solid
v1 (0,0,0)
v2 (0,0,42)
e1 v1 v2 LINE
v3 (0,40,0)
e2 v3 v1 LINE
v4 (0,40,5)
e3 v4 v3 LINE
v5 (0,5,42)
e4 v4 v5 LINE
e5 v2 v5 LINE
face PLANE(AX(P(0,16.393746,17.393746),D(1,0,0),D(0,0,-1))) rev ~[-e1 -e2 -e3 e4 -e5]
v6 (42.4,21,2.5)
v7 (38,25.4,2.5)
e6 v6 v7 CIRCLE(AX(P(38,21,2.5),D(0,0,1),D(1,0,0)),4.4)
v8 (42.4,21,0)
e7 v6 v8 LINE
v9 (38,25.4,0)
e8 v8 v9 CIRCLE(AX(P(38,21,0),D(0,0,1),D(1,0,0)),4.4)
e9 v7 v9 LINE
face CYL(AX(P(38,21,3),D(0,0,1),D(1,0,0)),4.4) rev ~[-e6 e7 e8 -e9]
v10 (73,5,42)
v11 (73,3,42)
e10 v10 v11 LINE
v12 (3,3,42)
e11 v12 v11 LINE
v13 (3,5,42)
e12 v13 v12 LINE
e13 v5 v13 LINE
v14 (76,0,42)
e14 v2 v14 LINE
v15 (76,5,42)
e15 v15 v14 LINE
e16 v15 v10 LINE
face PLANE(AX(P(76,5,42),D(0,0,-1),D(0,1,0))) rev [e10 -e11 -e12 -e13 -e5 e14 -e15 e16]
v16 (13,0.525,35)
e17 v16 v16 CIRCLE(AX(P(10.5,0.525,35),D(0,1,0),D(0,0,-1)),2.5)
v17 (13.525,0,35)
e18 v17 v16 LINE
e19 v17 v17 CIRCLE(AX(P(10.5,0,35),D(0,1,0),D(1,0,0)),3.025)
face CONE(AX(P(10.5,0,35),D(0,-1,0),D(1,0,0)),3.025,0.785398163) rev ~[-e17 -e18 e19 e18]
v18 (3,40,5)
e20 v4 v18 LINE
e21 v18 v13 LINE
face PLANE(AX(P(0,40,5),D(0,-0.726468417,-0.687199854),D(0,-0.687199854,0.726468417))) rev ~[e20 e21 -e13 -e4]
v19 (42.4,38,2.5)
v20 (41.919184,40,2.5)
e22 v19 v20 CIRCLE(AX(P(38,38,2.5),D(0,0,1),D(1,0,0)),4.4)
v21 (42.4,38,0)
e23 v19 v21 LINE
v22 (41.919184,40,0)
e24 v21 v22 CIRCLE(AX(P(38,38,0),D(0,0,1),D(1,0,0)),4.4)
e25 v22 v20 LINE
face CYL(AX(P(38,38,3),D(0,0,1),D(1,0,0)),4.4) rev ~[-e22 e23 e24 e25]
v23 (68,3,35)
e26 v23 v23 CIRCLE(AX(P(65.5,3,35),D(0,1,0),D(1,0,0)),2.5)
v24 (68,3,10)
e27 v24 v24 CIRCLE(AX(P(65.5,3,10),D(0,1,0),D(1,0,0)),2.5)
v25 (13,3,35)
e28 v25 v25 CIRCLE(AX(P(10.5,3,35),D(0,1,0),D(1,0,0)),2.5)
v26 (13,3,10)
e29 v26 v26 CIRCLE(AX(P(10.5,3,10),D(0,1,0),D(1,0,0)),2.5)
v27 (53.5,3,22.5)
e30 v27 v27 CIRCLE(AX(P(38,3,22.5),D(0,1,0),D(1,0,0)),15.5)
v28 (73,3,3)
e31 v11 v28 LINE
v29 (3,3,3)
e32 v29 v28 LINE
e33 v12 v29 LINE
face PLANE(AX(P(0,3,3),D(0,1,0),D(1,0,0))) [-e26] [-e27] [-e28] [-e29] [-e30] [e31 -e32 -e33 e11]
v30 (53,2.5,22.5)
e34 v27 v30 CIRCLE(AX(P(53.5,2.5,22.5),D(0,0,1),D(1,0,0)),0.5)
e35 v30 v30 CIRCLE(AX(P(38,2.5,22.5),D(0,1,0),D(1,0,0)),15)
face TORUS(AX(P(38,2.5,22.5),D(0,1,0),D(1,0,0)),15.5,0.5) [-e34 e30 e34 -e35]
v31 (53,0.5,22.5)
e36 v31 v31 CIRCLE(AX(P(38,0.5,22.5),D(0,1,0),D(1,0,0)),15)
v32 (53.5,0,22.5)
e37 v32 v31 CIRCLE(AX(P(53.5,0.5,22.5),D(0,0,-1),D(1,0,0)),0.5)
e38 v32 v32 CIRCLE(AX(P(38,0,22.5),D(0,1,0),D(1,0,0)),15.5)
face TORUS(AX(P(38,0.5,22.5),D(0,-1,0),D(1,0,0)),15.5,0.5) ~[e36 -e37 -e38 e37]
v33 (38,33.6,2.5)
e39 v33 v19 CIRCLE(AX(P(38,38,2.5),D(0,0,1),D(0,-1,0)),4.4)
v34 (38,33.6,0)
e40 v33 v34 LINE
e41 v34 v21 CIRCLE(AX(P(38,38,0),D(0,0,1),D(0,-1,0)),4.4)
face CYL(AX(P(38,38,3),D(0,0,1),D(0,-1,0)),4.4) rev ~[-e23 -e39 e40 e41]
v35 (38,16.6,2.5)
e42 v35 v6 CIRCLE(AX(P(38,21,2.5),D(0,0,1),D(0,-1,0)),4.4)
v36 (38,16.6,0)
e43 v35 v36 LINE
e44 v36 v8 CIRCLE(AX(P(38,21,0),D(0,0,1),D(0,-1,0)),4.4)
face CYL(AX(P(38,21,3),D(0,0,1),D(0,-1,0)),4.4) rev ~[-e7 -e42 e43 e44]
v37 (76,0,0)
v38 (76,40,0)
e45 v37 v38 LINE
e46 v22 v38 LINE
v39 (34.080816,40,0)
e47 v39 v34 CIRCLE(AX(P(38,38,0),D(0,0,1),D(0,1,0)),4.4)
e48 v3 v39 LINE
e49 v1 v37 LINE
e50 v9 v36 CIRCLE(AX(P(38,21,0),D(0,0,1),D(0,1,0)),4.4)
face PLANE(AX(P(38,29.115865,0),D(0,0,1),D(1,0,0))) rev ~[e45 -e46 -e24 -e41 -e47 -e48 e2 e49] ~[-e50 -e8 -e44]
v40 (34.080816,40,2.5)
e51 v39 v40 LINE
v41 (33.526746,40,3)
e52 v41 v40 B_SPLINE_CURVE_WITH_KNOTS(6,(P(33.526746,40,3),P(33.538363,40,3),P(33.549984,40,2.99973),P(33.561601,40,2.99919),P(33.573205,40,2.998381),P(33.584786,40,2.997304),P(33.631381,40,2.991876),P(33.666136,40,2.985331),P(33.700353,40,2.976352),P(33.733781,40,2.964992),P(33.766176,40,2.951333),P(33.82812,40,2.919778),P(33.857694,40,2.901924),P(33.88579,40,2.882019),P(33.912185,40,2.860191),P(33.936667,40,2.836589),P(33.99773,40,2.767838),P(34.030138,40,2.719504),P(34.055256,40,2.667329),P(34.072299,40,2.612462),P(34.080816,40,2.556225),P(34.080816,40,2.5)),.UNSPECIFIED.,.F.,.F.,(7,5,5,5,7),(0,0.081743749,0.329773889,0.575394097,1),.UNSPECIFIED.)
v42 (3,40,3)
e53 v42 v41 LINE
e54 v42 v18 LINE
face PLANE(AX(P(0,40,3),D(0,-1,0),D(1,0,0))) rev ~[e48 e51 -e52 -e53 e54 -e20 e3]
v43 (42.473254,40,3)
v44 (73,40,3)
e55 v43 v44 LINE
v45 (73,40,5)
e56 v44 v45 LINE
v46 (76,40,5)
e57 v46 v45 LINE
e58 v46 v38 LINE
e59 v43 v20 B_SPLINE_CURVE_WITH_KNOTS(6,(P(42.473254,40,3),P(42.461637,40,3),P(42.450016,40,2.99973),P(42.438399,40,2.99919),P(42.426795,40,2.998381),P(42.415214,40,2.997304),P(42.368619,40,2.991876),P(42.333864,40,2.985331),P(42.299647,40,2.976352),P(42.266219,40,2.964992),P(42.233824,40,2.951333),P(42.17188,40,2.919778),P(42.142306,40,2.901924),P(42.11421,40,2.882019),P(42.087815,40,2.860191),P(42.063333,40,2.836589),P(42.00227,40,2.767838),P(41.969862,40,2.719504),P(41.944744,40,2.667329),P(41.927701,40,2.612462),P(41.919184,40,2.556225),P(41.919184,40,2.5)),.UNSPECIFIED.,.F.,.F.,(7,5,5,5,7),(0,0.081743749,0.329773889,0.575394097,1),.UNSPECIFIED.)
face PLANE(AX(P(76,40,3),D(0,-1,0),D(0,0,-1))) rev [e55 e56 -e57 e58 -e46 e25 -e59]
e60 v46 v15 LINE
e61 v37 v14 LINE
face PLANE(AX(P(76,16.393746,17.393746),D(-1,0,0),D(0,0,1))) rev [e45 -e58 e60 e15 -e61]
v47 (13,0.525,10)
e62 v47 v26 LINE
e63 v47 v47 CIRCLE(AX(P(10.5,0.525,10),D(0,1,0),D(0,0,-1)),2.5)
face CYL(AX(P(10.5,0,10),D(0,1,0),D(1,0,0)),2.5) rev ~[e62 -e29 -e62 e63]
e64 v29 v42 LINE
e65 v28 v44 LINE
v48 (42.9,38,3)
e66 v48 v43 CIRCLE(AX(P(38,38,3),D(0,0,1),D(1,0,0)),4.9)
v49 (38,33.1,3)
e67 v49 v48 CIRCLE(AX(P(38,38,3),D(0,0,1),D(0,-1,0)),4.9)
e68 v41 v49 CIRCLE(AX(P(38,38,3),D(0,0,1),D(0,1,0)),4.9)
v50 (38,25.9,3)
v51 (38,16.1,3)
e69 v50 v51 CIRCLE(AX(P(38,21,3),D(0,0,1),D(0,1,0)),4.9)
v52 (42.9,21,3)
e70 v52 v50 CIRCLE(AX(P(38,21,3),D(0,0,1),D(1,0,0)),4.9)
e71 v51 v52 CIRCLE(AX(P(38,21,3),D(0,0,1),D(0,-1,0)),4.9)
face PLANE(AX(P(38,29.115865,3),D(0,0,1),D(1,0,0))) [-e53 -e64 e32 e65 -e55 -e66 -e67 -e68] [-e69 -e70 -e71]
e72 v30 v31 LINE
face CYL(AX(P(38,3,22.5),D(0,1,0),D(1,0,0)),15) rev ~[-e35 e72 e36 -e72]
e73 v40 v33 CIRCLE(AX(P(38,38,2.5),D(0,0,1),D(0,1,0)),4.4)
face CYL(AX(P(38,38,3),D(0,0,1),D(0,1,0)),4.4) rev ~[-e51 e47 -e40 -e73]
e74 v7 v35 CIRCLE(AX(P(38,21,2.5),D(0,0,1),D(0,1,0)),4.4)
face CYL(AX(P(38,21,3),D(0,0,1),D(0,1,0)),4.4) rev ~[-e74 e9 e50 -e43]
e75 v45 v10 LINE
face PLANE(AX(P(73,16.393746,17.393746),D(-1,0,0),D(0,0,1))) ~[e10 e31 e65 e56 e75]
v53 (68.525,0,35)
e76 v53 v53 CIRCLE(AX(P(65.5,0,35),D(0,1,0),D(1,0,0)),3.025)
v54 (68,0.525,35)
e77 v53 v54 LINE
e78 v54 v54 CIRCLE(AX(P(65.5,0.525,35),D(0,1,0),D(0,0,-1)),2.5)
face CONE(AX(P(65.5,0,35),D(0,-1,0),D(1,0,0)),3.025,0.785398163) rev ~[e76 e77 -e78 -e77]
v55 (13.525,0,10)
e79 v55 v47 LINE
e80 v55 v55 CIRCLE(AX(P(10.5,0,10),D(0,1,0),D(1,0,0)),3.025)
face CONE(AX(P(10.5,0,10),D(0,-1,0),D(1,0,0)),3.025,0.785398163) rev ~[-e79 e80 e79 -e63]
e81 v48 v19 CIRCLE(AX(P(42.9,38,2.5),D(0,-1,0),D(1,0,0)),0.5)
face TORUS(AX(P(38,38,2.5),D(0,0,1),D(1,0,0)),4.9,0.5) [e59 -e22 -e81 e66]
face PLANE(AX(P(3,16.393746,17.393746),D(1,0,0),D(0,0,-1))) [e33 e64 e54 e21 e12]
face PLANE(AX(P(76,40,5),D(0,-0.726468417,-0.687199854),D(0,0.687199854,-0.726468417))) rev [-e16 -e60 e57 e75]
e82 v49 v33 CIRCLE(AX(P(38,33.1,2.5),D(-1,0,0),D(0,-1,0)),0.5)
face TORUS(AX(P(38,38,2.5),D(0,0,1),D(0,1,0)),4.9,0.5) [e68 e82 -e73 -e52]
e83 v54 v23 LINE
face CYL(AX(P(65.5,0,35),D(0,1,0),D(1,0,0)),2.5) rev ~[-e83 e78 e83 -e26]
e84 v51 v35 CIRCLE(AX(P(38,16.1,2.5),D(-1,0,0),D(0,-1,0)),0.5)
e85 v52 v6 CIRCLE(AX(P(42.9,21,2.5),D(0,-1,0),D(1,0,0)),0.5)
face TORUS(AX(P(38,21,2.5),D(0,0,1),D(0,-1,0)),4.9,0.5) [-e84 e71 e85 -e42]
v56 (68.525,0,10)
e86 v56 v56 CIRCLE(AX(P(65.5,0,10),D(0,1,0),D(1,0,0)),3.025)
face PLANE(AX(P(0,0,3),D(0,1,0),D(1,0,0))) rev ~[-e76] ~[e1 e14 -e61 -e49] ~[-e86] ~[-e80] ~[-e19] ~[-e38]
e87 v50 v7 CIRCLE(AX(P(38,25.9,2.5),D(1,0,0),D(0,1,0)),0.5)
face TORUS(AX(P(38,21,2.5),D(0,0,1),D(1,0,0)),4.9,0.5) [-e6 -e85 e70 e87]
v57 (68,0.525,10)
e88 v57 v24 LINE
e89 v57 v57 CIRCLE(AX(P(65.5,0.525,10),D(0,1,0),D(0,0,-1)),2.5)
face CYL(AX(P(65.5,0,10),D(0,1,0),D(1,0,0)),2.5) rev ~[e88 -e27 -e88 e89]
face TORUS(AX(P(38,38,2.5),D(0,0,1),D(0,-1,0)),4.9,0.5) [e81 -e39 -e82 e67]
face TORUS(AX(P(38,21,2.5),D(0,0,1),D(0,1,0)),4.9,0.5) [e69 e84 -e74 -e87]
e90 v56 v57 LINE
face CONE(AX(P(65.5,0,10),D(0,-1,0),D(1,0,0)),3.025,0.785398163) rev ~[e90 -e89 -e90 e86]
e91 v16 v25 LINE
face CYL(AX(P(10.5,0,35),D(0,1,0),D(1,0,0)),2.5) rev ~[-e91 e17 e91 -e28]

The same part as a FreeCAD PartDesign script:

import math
import FreeCAD as App
import Part
import Sketcher
from FreeCAD import Vector


def edges_at(feature, points):
    """Names of the edges that pass closest to the given points."""
    edges = feature.Shape.Edges
    near = lambda p: min(range(len(edges)), key=lambda i: edges[i].distToShape(Part.Vertex(*p))[0])
    return sorted({f"Edge{near(p) + 1}" for p in points})

doc = App.newDocument("Part")
params = doc.addObject("Spreadsheet::Sheet", "Params")
for row, (alias, value) in enumerate([
    ("sketch1_width", "20 mm"),
    ("sketch1_width2", "76 mm"),
    ("sketch1_height", "40 mm"),
    ("pad1_length", "3 mm"),
    ("sketch2_width", "76 mm"),
    ("sketch2_height", "3 mm"),
    ("pad2_length", "39 mm"),
    ("sketch3_radius", "4.4 mm"),
    ("pocket1_length", "52 mm"),
    ("sketch4_diameter", "30 mm"),
    ("pocket2_length", "52 mm"),
    ("sketch5_width", "37 mm"),
    ("sketch5_width2", "2 mm"),
    ("sketch5_height", "39 mm"),
    ("pad3_length", "3 mm"),
    ("sketch6_diameter", "5 mm"),
    ("hole_diameter", "5 mm"),
    ("hole_csink_diameter", "6.05 mm"),
    ("fillet_radius", "5 mm"),
    ("fillet2_radius", "0.5 mm"),
    ("sketch7_width", "76 mm"),
    ("pocket3_length", "21 mm"),
], start=1):
    params.set(f"A{row}", alias)
    params.set(f"B{row}", "=" + value)
    params.setAlias(f"B{row}", alias)

body = doc.addObject("PartDesign::Body", "Body")

# Sketch on XY plane
sketch1 = doc.addObject("Sketcher::SketchObject", "Sketch")
body.addObject(sketch1)
sketch1.AttachmentSupport = (doc.XY_Plane, [""])
sketch1.MapMode = "FlatFace"
sketch1.addGeometry([
    Part.LineSegment(Vector(48, 70, 0), Vector(28, 70, 0)),  # 0
    Part.LineSegment(Vector(28, 70, 0), Vector(0, 40, 0)),  # 1
    Part.LineSegment(Vector(0, 40, 0), Vector(0, 0, 0)),  # 2
    Part.LineSegment(Vector(0, 0, 0), Vector(76, 0, 0)),  # 3
    Part.LineSegment(Vector(76, 0, 0), Vector(76, 40, 0)),  # 4
    Part.LineSegment(Vector(76, 40, 0), Vector(48, 70, 0)),  # 5
], False)
sketch1.addConstraint([
    Sketcher.Constraint("Coincident", 0, 2, 1, 1),
    Sketcher.Constraint("Coincident", 1, 2, 2, 1),
    Sketcher.Constraint("Coincident", 2, 2, 3, 1),
    Sketcher.Constraint("Coincident", 3, 2, 4, 1),
    Sketcher.Constraint("Coincident", 4, 2, 5, 1),
    Sketcher.Constraint("Coincident", 5, 2, 0, 1),
    Sketcher.Constraint("Horizontal", 0),
    Sketcher.Constraint("Vertical", 2),
    Sketcher.Constraint("Horizontal", 3),
    Sketcher.Constraint("Vertical", 4),
    Sketcher.Constraint("Coincident", 2, 2, -1, 1),
    Sketcher.Constraint("Horizontal", 1, 2, 4, 2),
    Sketcher.Constraint("Equal", 1, 5),
    Sketcher.Constraint("DistanceX", 0, 2, 0, 1, 20.0),
    Sketcher.Constraint("DistanceX", 3, 1, 3, 2, 76.0),
    Sketcher.Constraint("DistanceY", 2, 2, 2, 1, 40.0),
    Sketcher.Constraint("DistanceY", -1, 1, 0, 2, 70.0),
])
sketch1.setExpression("Constraints[13]", "Params.sketch1_width")
sketch1.setExpression("Constraints[14]", "Params.sketch1_width2")
sketch1.setExpression("Constraints[15]", "Params.sketch1_height")
pad1 = doc.addObject("PartDesign::Pad", "Pad")
body.addObject(pad1)
pad1.Profile = sketch1
pad1.setExpression("Length", "Params.pad1_length")

# Sketch on XY plane
sketch2 = doc.addObject("Sketcher::SketchObject", "Sketch001")
body.addObject(sketch2)
sketch2.AttachmentSupport = (doc.XY_Plane, [""])
sketch2.MapMode = "FlatFace"
sketch2.AttachmentOffset = App.Placement(Vector(0, 0, 3), App.Rotation())
sketch2.addGeometry([
    Part.LineSegment(Vector(0, 3, 0), Vector(0, 0, 0)),
    Part.LineSegment(Vector(0, 0, 0), Vector(76, 0, 0)),
    Part.LineSegment(Vector(76, 0, 0), Vector(76, 3, 0)),
    Part.LineSegment(Vector(76, 3, 0), Vector(0, 3, 0)),
], False)
sketch2.addConstraint([
    Sketcher.Constraint("Coincident", 0, 2, 1, 1),
    Sketcher.Constraint("Coincident", 1, 2, 2, 1),
    Sketcher.Constraint("Coincident", 2, 2, 3, 1),
    Sketcher.Constraint("Coincident", 3, 2, 0, 1),
    Sketcher.Constraint("Vertical", 0),
    Sketcher.Constraint("Horizontal", 1),
    Sketcher.Constraint("Vertical", 2),
    Sketcher.Constraint("Horizontal", 3),
    Sketcher.Constraint("Coincident", 0, 2, -1, 1),
    Sketcher.Constraint("DistanceX", 1, 1, 1, 2, 76.0),
    Sketcher.Constraint("DistanceY", 0, 2, 0, 1, 3.0),
])
sketch2.setExpression("Constraints[9]", "Params.sketch2_width")
sketch2.setExpression("Constraints[10]", "Params.sketch2_height")
pad2 = doc.addObject("PartDesign::Pad", "Pad001")
body.addObject(pad2)
pad2.Profile = sketch2
pad2.setExpression("Length", "Params.pad2_length")

# Sketch on XY plane
sketch3 = doc.addObject("Sketcher::SketchObject", "Sketch002")
body.addObject(sketch3)
sketch3.AttachmentSupport = (doc.XY_Plane, [""])
sketch3.MapMode = "FlatFace"
sketch3.AttachmentOffset = App.Placement(Vector(0, 0, 3), App.Rotation())
sketch3.addGeometry([
    Part.ArcOfCircle(Part.Circle(Vector(38, 55, 0), Vector(0, 0, 1), 4.4), math.radians(0), math.radians(90)),  # 0
    Part.ArcOfCircle(Part.Circle(Vector(38, 55, 0), Vector(0, 0, 1), 4.4), math.radians(90), math.radians(270)),  # 1
    Part.ArcOfCircle(Part.Circle(Vector(38, 55, 0), Vector(0, 0, 1), 4.4), math.radians(-90), math.radians(0)),  # 2
    Part.ArcOfCircle(Part.Circle(Vector(38, 38, 0), Vector(0, 0, 1), 4.4), math.radians(0), math.radians(90)),  # 3
    Part.ArcOfCircle(Part.Circle(Vector(38, 38, 0), Vector(0, 0, 1), 4.4), math.radians(90), math.radians(270)),  # 4
    Part.ArcOfCircle(Part.Circle(Vector(38, 38, 0), Vector(0, 0, 1), 4.4), math.radians(-90), math.radians(0)),  # 5
    Part.ArcOfCircle(Part.Circle(Vector(38, 21, 0), Vector(0, 0, 1), 4.4), math.radians(0), math.radians(90)),  # 6
    Part.ArcOfCircle(Part.Circle(Vector(38, 21, 0), Vector(0, 0, 1), 4.4), math.radians(90), math.radians(270)),  # 7
    Part.ArcOfCircle(Part.Circle(Vector(38, 21, 0), Vector(0, 0, 1), 4.4), math.radians(-90), math.radians(0)),  # 8
], False)
sketch3.addConstraint([
    Sketcher.Constraint("Tangent", 0, 2, 1, 1),
    Sketcher.Constraint("Tangent", 1, 2, 2, 1),
    Sketcher.Constraint("Tangent", 2, 2, 0, 1),
    Sketcher.Constraint("Tangent", 3, 2, 4, 1),
    Sketcher.Constraint("Tangent", 4, 2, 5, 1),
    Sketcher.Constraint("Tangent", 5, 2, 3, 1),
    Sketcher.Constraint("Tangent", 6, 2, 7, 1),
    Sketcher.Constraint("Tangent", 7, 2, 8, 1),
    Sketcher.Constraint("Tangent", 8, 2, 6, 1),
    Sketcher.Constraint("Equal", 2, 3),
    Sketcher.Constraint("Equal", 5, 6),
    Sketcher.Constraint("Horizontal", 1, 3, 2, 2),
    Sketcher.Constraint("Horizontal", 4, 3, 5, 2),
    Sketcher.Constraint("Horizontal", 7, 3, 8, 2),
    Sketcher.Constraint("Vertical", 2, 3, 3, 3),
    Sketcher.Constraint("Vertical", 5, 3, 6, 3),
    Sketcher.Constraint("Vertical", 8, 3, 0, 2),
    Sketcher.Constraint("Vertical", 0, 2, 1, 2),
    Sketcher.Constraint("Vertical", 1, 2, 3, 2),
    Sketcher.Constraint("Vertical", 3, 2, 4, 2),
    Sketcher.Constraint("Vertical", 4, 2, 6, 2),
    Sketcher.Constraint("Vertical", 6, 2, 7, 2),
    Sketcher.Constraint("Radius", 0, 4.4),
    Sketcher.Constraint("DistanceX", -1, 1, 0, 3, 38.0),
    Sketcher.Constraint("DistanceY", -1, 1, 0, 3, 55.0),
    Sketcher.Constraint("DistanceY", -1, 1, 3, 3, 38.0),
    Sketcher.Constraint("DistanceY", -1, 1, 6, 3, 21.0),
])
sketch3.setExpression("Constraints[22]", "Params.sketch3_radius")
pocket1 = doc.addObject("PartDesign::Pocket", "Pocket")
body.addObject(pocket1)
pocket1.Profile = sketch3
pocket1.setExpression("Length", "Params.pocket1_length")

# Sketch on XZ plane
sketch4 = doc.addObject("Sketcher::SketchObject", "Sketch003")
body.addObject(sketch4)
sketch4.AttachmentSupport = (doc.XZ_Plane, [""])
sketch4.MapMode = "FlatFace"
sketch4.AttachmentOffset = App.Placement(Vector(0, 0, -3), App.Rotation())
sketch4.addGeometry(Part.Circle(Vector(38, 22, 0), Vector(0, 0, 1), 15), False)
sketch4.addConstraint([
    Sketcher.Constraint("Diameter", 0, 30.0),
    Sketcher.Constraint("DistanceX", -1, 1, 0, 3, 38.0),
    Sketcher.Constraint("DistanceY", -1, 1, 0, 3, 22.5),
])
sketch4.setExpression("Constraints[0]", "Params.sketch4_diameter")
pocket2 = doc.addObject("PartDesign::Pocket", "Pocket001")
body.addObject(pocket2)
pocket2.Profile = sketch4
pocket2.setExpression("Length", "Params.pocket2_length")
pocket2.Reversed = True

# Sketch on YZ plane
sketch5 = doc.addObject("Sketcher::SketchObject", "Sketch004")
body.addObject(sketch5)
sketch5.AttachmentSupport = (doc.YZ_Plane, [""])
sketch5.MapMode = "FlatFace"
sketch5.addGeometry([
    Part.LineSegment(Vector(40, 5, 0), Vector(40, 3, 0)),  # 0
    Part.LineSegment(Vector(40, 3, 0), Vector(3, 3, 0)),  # 1
    Part.LineSegment(Vector(3, 3, 0), Vector(3, 42, 0)),  # 2
    Part.LineSegment(Vector(3, 42, 0), Vector(5, 42, 0)),  # 3
    Part.LineSegment(Vector(5, 42, 0), Vector(40, 5, 0)),  # 4
], False)
sketch5.addConstraint([
    Sketcher.Constraint("Coincident", 0, 2, 1, 1),
    Sketcher.Constraint("Coincident", 1, 2, 2, 1),
    Sketcher.Constraint("Coincident", 2, 2, 3, 1),
    Sketcher.Constraint("Coincident", 3, 2, 4, 1),
    Sketcher.Constraint("Coincident", 4, 2, 0, 1),
    Sketcher.Constraint("Vertical", 0),
    Sketcher.Constraint("Horizontal", 1),
    Sketcher.Constraint("Vertical", 2),
    Sketcher.Constraint("Horizontal", 3),
    Sketcher.Constraint("Equal", 3, 0),
    Sketcher.Constraint("DistanceX", 1, 2, 1, 1, 37.0),
    Sketcher.Constraint("DistanceX", 3, 1, 3, 2, 2.0),
    Sketcher.Constraint("DistanceY", 2, 1, 2, 2, 39.0),
    Sketcher.Constraint("DistanceX", -1, 1, 0, 2, 40.0),
    Sketcher.Constraint("DistanceY", -1, 1, 0, 2, 3.0),
])
sketch5.setExpression("Constraints[10]", "Params.sketch5_width")
sketch5.setExpression("Constraints[11]", "Params.sketch5_width2")
sketch5.setExpression("Constraints[12]", "Params.sketch5_height")
pad3 = doc.addObject("PartDesign::Pad", "Pad002")
body.addObject(pad3)
pad3.Profile = sketch5
pad3.setExpression("Length", "Params.pad3_length")
doc.recompute()

datumplane = doc.addObject("PartDesign::Plane", "DatumPlane")
body.addObject(datumplane)
datumplane.AttachmentSupport = (doc.YZ_Plane, [""])
datumplane.MapMode = "FlatFace"
datumplane.AttachmentOffset = App.Placement(Vector(0, 0, 38), App.Rotation())
mirrored = doc.addObject("PartDesign::Mirrored", "Mirrored")
body.addObject(mirrored)
mirrored.Originals = [pad3]
mirrored.MirrorPlane = (datumplane, [""])
body.Tip = mirrored

# Sketch on XZ plane
sketch6 = doc.addObject("Sketcher::SketchObject", "Sketch005")
body.addObject(sketch6)
sketch6.AttachmentSupport = (doc.XZ_Plane, [""])
sketch6.MapMode = "FlatFace"
sketch6.addGeometry([
    Part.Circle(Vector(65.5, 10, 0), Vector(0, 0, 1), 2.5),
    Part.Circle(Vector(10.5, 10, 0), Vector(0, 0, 1), 2.5),
    Part.Circle(Vector(10.5, 35, 0), Vector(0, 0, 1), 2.5),
    Part.Circle(Vector(65.5, 35, 0), Vector(0, 0, 1), 2.5),
], False)
sketch6.addConstraint([
    Sketcher.Constraint("Equal", 0, 1),
    Sketcher.Constraint("Equal", 1, 2),
    Sketcher.Constraint("Equal", 2, 3),
    Sketcher.Constraint("Horizontal", 0, 3, 1, 3),
    Sketcher.Constraint("Horizontal", 2, 3, 3, 3),
    Sketcher.Constraint("Vertical", 1, 3, 2, 3),
    Sketcher.Constraint("Vertical", 0, 3, 3, 3),
    Sketcher.Constraint("Diameter", 0, 5.0),
    Sketcher.Constraint("DistanceY", -1, 1, 0, 3, 10.0),
    Sketcher.Constraint("DistanceY", -1, 1, 2, 3, 35.0),
    Sketcher.Constraint("DistanceX", 1, 3, 0, 3, 55.0),
    Sketcher.Constraint("DistanceX", -1, 1, 0, 3, 65.5),
])
sketch6.setExpression("Constraints[7]", "Params.sketch6_diameter")
doc.recompute()
hole = doc.addObject("PartDesign::Hole", "Hole")
body.addObject(hole)
hole.Profile = sketch6
hole.ThreadType = "None"
hole.setExpression("Diameter", "Params.hole_diameter")
hole.DepthType = "ThroughAll"
hole.HoleCutType = "Countersink"
hole.setExpression("HoleCutDiameter", "Params.hole_csink_diameter")
hole.HoleCutCountersinkAngle = 90
doc.recompute()

fillet = doc.addObject("PartDesign::Fillet", "Fillet")
body.addObject(fillet)
fillet.Base = (hole, edges_at(hole, [(48, 70, 1.5), (28, 70, 1.5)]))
fillet.setExpression("Radius", "Params.fillet_radius")
doc.recompute()

fillet2 = doc.addObject("PartDesign::Fillet", "Fillet001")
body.addObject(fillet2)
fillet2.Base = (fillet, edges_at(fillet, [
    (41.111, 51.889, 3),
    (41.111, 34.889, 3),
    (41.111, 17.889, 3),
    (23, 0, 22.5),
    (23, 3, 22.5),
]))
fillet2.setExpression("Radius", "Params.fillet2_radius")

# Sketch on XY plane
sketch7 = doc.addObject("Sketcher::SketchObject", "Sketch006")
body.addObject(sketch7)
sketch7.AttachmentSupport = (doc.XY_Plane, [""])
sketch7.MapMode = "FlatFace"
sketch7.AttachmentOffset = App.Placement(Vector(0, 0, 3), App.Rotation())
sketch7.addGeometry([
    Part.LineSegment(Vector(0, 71, 0), Vector(0, 40, 0)),
    Part.LineSegment(Vector(0, 40, 0), Vector(76, 40, 0)),
    Part.LineSegment(Vector(76, 40, 0), Vector(76, 71, 0)),
    Part.LineSegment(Vector(76, 71, 0), Vector(0, 71, 0)),
], False)
sketch7.addConstraint([
    Sketcher.Constraint("Coincident", 0, 2, 1, 1),
    Sketcher.Constraint("Coincident", 1, 2, 2, 1),
    Sketcher.Constraint("Coincident", 2, 2, 3, 1),
    Sketcher.Constraint("Coincident", 3, 2, 0, 1),
    Sketcher.Constraint("Vertical", 0),
    Sketcher.Constraint("Horizontal", 1),
    Sketcher.Constraint("Vertical", 2),
    Sketcher.Constraint("Horizontal", 3),
    Sketcher.Constraint("PointOnObject", 0, 2, -2),
    Sketcher.Constraint("DistanceX", 1, 1, 1, 2, 76.0),
    Sketcher.Constraint("DistanceY", -1, 1, 0, 2, 40.0),
    Sketcher.Constraint("DistanceY", 0, 2, 0, 1, 31.45527),
])
sketch7.setExpression("Constraints[9]", "Params.sketch7_width")
pocket3 = doc.addObject("PartDesign::Pocket", "Pocket002")
body.addObject(pocket3)
pocket3.Profile = sketch7
pocket3.setExpression("Length", "Params.pocket3_length")

doc.recompute()
